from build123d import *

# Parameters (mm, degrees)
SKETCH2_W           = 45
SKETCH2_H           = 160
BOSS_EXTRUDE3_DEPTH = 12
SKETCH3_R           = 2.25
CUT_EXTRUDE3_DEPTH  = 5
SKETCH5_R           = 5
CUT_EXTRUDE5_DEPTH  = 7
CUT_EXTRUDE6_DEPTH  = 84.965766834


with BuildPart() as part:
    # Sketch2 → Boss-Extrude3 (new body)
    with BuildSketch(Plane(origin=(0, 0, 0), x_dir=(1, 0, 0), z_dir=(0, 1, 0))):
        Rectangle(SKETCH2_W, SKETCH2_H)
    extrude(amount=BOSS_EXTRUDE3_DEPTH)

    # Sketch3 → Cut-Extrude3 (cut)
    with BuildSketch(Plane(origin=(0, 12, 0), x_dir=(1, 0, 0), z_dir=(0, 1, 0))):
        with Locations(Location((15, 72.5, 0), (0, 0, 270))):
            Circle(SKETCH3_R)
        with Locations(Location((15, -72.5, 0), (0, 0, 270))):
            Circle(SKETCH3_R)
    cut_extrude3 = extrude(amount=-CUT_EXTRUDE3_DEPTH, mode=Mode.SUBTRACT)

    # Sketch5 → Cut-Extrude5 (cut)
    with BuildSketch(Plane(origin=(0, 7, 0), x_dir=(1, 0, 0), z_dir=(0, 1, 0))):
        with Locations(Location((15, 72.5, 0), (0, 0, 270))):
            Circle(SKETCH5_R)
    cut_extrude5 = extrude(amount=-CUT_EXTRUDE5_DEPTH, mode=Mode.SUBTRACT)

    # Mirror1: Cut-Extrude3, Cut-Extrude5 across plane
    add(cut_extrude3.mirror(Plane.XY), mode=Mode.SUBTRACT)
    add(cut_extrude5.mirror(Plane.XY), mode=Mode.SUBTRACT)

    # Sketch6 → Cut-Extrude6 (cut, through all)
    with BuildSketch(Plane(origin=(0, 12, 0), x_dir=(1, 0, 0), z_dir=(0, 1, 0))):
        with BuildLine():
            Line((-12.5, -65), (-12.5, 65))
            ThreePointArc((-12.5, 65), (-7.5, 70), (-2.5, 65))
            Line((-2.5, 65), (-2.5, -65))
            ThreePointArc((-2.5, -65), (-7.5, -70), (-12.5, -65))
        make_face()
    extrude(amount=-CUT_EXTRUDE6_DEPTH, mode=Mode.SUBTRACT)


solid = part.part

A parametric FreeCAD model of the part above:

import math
import FreeCAD as App
import Part
import Sketcher
from FreeCAD import Vector
Q = App.Units.Quantity

doc = App.newDocument("Part")
body = doc.addObject("PartDesign::Body", "Body")

sketch1 = doc.addObject("Sketcher::SketchObject", "Sketch")
body.addObject(sketch1)
sketch1.AttachmentSupport = (doc.XZ_Plane, [""])
sketch1.MapMode = "FlatFace"
sketch1.addGeometry([
    Part.LineSegment(Vector(-22, -80, 0), Vector(-22, 80, 0)),
    Part.LineSegment(Vector(-22, 80, 0), Vector(22, 80, 0)),
    Part.LineSegment(Vector(22, 80, 0), Vector(22, -80, 0)),
    Part.LineSegment(Vector(22, -80, 0), Vector(-22, -80, 0)),
], False)
sketch1.addConstraint([
    Sketcher.Constraint("Coincident", 0, 2, 1, 1),
    Sketcher.Constraint("Coincident", 1, 2, 2, 1),
    Sketcher.Constraint("Coincident", 2, 2, 3, 1),
    Sketcher.Constraint("Coincident", 3, 2, 0, 1),
    Sketcher.Constraint("Vertical", 0),
    Sketcher.Constraint("Horizontal", 1),
    Sketcher.Constraint("Vertical", 2),
    Sketcher.Constraint("Horizontal", 3),
    Sketcher.Constraint("Symmetric", 0, 2, 2, 2, -1, 1),
    Sketcher.Constraint("DistanceX", 1, 1, 1, 2, Q("45 mm")),
    Sketcher.Constraint("DistanceY", 0, 1, 0, 2, Q("160 mm")),
])
pad1 = doc.addObject("PartDesign::Pad", "Pad")
body.addObject(pad1)
pad1.Profile = sketch1
pad1.Length = 12
pad1.Reversed = True

sketch2 = doc.addObject("Sketcher::SketchObject", "Sketch001")
body.addObject(sketch2)
sketch2.AttachmentSupport = (doc.XZ_Plane, [""])
sketch2.MapMode = "FlatFace"
sketch2.AttachmentOffset = App.Placement(Vector(0, 0, -12), App.Rotation())
sketch2.addGeometry([
    Part.Circle(Vector(15, -72.5, 0), Vector(0, 0, 1), 2.2),
    Part.Circle(Vector(15, 72.5, 0), Vector(0, 0, 1), 2.2),
], False)
sketch2.addConstraint([
    Sketcher.Constraint("Equal", 0, 1),
    Sketcher.Constraint("Symmetric", 0, 3, 1, 3, -1),
    Sketcher.Constraint("Diameter", 0, Q("4.5 mm")),
    Sketcher.Constraint("DistanceX", -1, 1, 0, 3, Q("15 mm")),
    Sketcher.Constraint("DistanceY", 0, 3, 1, 3, Q("145 mm")),
])
pocket1 = doc.addObject("PartDesign::Pocket", "Pocket")
body.addObject(pocket1)
pocket1.Profile = sketch2
pocket1.Length = 5
pocket1.Reversed = True

sketch3 = doc.addObject("Sketcher::SketchObject", "Sketch002")
body.addObject(sketch3)
sketch3.AttachmentSupport = (doc.XZ_Plane, [""])
sketch3.MapMode = "FlatFace"
sketch3.AttachmentOffset = App.Placement(Vector(0, 0, -7), App.Rotation())
sketch3.addGeometry(Part.Circle(Vector(15, -72, 0), Vector(0, 0, 1), 5), False)
sketch3.addConstraint([
    Sketcher.Constraint("Diameter", 0, Q("10 mm")),
    Sketcher.Constraint("DistanceX", -1, 1, 0, 3, Q("15 mm")),
    Sketcher.Constraint("DistanceY", 0, 3, -1, 1, Q("72.5 mm")),
])
pocket2 = doc.addObject("PartDesign::Pocket", "Pocket001")
body.addObject(pocket2)
pocket2.Profile = sketch3
pocket2.Length = 7
pocket2.Reversed = True
doc.recompute()

mirrored = doc.addObject("PartDesign::Mirrored", "Mirrored")
body.addObject(mirrored)
mirrored.Originals = [pocket1, pocket2]
mirrored.MirrorPlane = (doc.XY_Plane, [""])
body.Tip = mirrored

sketch4 = doc.addObject("Sketcher::SketchObject", "Sketch003")
body.addObject(sketch4)
sketch4.AttachmentSupport = (doc.XZ_Plane, [""])
sketch4.MapMode = "FlatFace"
sketch4.AttachmentOffset = App.Placement(Vector(0, 0, -12), App.Rotation())
sketch4.addGeometry([
    Part.LineSegment(Vector(-12, -65, 0), Vector(-12, 65, 0)),
    Part.ArcOfCircle(Part.Circle(Vector(-8, 65, 0), Vector(0, 0, 1), 5), math.radians(0), math.radians(180)),
    Part.LineSegment(Vector(-2, 65, 0), Vector(-2, -65, 0)),
    Part.ArcOfCircle(Part.Circle(Vector(-8, -65, 0), Vector(0, 0, 1), 5), math.radians(180), math.radians(360)),
], False)
sketch4.addConstraint([
    Sketcher.Constraint("Tangent", 0, 2, 1, 2),
    Sketcher.Constraint("Tangent", 1, 1, 2, 1),
    Sketcher.Constraint("Tangent", 2, 2, 3, 2),
    Sketcher.Constraint("Tangent", 3, 1, 0, 1),
    Sketcher.Constraint("Vertical", 0),
    Sketcher.Constraint("Vertical", 2),
    Sketcher.Constraint("Radius", 1, Q("5 mm")),
    Sketcher.Constraint("DistanceY", 0, 1, 0, 2, Q("130 mm")),
    Sketcher.Constraint("DistanceY", -1, 1, 1, 3, Q("65 mm")),
    Sketcher.Constraint("DistanceX", 1, 3, -1, 1, Q("7.5 mm")),
])
pocket3 = doc.addObject("PartDesign::Pocket", "Pocket002")
body.addObject(pocket3)
pocket3.Profile = sketch4
pocket3.Type = "ThroughAll"
pocket3.Reversed = True

doc.recompute()
